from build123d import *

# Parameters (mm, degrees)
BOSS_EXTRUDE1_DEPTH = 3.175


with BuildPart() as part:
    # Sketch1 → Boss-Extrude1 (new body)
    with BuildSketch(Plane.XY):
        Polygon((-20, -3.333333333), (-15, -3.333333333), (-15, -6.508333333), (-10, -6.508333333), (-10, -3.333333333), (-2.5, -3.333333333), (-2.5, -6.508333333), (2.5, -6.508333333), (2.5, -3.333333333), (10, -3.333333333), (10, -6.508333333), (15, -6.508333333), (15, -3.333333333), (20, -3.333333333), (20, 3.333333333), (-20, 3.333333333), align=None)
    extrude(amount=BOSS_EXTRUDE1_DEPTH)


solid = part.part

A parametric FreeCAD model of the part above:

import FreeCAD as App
import Part
import Sketcher
from FreeCAD import Vector
Q = App.Units.Quantity

doc = App.newDocument("Part")
body = doc.addObject("PartDesign::Body", "Body")

# Sketch on XY plane
sketch1 = body.newObject("Sketcher::SketchObject", "Sketch")
sketch1.AttachmentSupport = (doc.getObject("XY_Plane"), [""])
sketch1.MapMode = "FlatFace"
sketch1.addGeometry(Part.LineSegment(Vector(-20, -3.3, 0), Vector(-15, -3.3, 0)), False)
sketch1.addGeometry(Part.LineSegment(Vector(-15, -3.3, 0), Vector(-15, -6.5, 0)), False)
sketch1.addGeometry(Part.LineSegment(Vector(-15, -6.5, 0), Vector(-10, -6.5, 0)), False)
sketch1.addGeometry(Part.LineSegment(Vector(-10, -6.5, 0), Vector(-10, -3.3, 0)), False)
sketch1.addGeometry(Part.LineSegment(Vector(-10, -3.3, 0), Vector(-2.5, -3.3, 0)), False)
sketch1.addGeometry(Part.LineSegment(Vector(-2.5, -3.3, 0), Vector(-2.5, -6.5, 0)), False)
sketch1.addGeometry(Part.LineSegment(Vector(-2.5, -6.5, 0), Vector(2.5, -6.5, 0)), False)
sketch1.addGeometry(Part.LineSegment(Vector(2.5, -6.5, 0), Vector(2.5, -3.3, 0)), False)
sketch1.addGeometry(Part.LineSegment(Vector(2.5, -3.3, 0), Vector(10, -3.3, 0)), False)
sketch1.addGeometry(Part.LineSegment(Vector(10, -3.3, 0), Vector(10, -6.5, 0)), False)
sketch1.addGeometry(Part.LineSegment(Vector(10, -6.5, 0), Vector(15, -6.5, 0)), False)
sketch1.addGeometry(Part.LineSegment(Vector(15, -6.5, 0), Vector(15, -3.3, 0)), False)
sketch1.addGeometry(Part.LineSegment(Vector(15, -3.3, 0), Vector(20, -3.3, 0)), False)
sketch1.addGeometry(Part.LineSegment(Vector(20, -3.3, 0), Vector(20, 3.3, 0)), False)
sketch1.addGeometry(Part.LineSegment(Vector(20, 3.3, 0), Vector(-20, 3.3, 0)), False)
sketch1.addGeometry(Part.LineSegment(Vector(-20, 3.3, 0), Vector(-20, -3.3, 0)), False)
sketch1.addConstraint(Sketcher.Constraint("Coincident", 0, 2, 1, 1))
sketch1.addConstraint(Sketcher.Constraint("Coincident", 1, 2, 2, 1))
sketch1.addConstraint(Sketcher.Constraint("Coincident", 2, 2, 3, 1))
sketch1.addConstraint(Sketcher.Constraint("Coincident", 3, 2, 4, 1))
sketch1.addConstraint(Sketcher.Constraint("Coincident", 4, 2, 5, 1))
sketch1.addConstraint(Sketcher.Constraint("Coincident", 5, 2, 6, 1))
sketch1.addConstraint(Sketcher.Constraint("Coincident", 6, 2, 7, 1))
sketch1.addConstraint(Sketcher.Constraint("Coincident", 7, 2, 8, 1))
sketch1.addConstraint(Sketcher.Constraint("Coincident", 8, 2, 9, 1))
sketch1.addConstraint(Sketcher.Constraint("Coincident", 9, 2, 10, 1))
sketch1.addConstraint(Sketcher.Constraint("Coincident", 10, 2, 11, 1))
sketch1.addConstraint(Sketcher.Constraint("Coincident", 11, 2, 12, 1))
sketch1.addConstraint(Sketcher.Constraint("Coincident", 12, 2, 13, 1))
sketch1.addConstraint(Sketcher.Constraint("Coincident", 13, 2, 14, 1))
sketch1.addConstraint(Sketcher.Constraint("Coincident", 14, 2, 15, 1))
sketch1.addConstraint(Sketcher.Constraint("Coincident", 15, 2, 0, 1))
sketch1.addConstraint(Sketcher.Constraint("Horizontal", 0))
sketch1.addConstraint(Sketcher.Constraint("Vertical", 1))
sketch1.addConstraint(Sketcher.Constraint("Horizontal", 2))
sketch1.addConstraint(Sketcher.Constraint("Vertical", 3))
sketch1.addConstraint(Sketcher.Constraint("Horizontal", 4))
sketch1.addConstraint(Sketcher.Constraint("Vertical", 5))
sketch1.addConstraint(Sketcher.Constraint("Horizontal", 6))
sketch1.addConstraint(Sketcher.Constraint("Vertical", 7))
sketch1.addConstraint(Sketcher.Constraint("Horizontal", 8))
sketch1.addConstraint(Sketcher.Constraint("Vertical", 9))
sketch1.addConstraint(Sketcher.Constraint("Horizontal", 10))
sketch1.addConstraint(Sketcher.Constraint("Vertical", 11))
sketch1.addConstraint(Sketcher.Constraint("Horizontal", 12))
sketch1.addConstraint(Sketcher.Constraint("Vertical", 13))
sketch1.addConstraint(Sketcher.Constraint("Horizontal", 14))
sketch1.addConstraint(Sketcher.Constraint("Vertical", 15))
sketch1.addConstraint(Sketcher.Constraint("Symmetric", 12, 2, 14, 2, -1, 1))
sketch1.addConstraint(Sketcher.Constraint("Symmetric", 4, 2, 7, 2, -2))
sketch1.addConstraint(Sketcher.Constraint("Symmetric", 2, 2, 9, 2, -2))
sketch1.addConstraint(Sketcher.Constraint("Symmetric", 0, 2, 11, 2, -2))
sketch1.addConstraint(Sketcher.Constraint("Horizontal", 0, 2, 3, 2))
sketch1.addConstraint(Sketcher.Constraint("Horizontal", 2, 2, 5, 2))
sketch1.addConstraint(Sketcher.Constraint("Equal", 0, 2))
sketch1.addConstraint(Sketcher.Constraint("Equal", 2, 6))
sketch1.addConstraint(Sketcher.Constraint("DistanceX", 0, 1, 0, 2, Q("5 mm")))
sketch1.addConstraint(Sketcher.Constraint("DistanceX", 14, 2, 14, 1, Q("40 mm")))
sketch1.addConstraint(Sketcher.Constraint("DistanceY", 1, 2, 1, 1, Q("3.175 mm")))
sketch1.addConstraint(Sketcher.Constraint("DistanceY", 13, 1, 13, 2, Q("6.666667 mm")))
pad1 = body.newObject("PartDesign::Pad", "Pad")
pad1.Profile = sketch1
pad1.Length = 3.175

doc.recompute()
